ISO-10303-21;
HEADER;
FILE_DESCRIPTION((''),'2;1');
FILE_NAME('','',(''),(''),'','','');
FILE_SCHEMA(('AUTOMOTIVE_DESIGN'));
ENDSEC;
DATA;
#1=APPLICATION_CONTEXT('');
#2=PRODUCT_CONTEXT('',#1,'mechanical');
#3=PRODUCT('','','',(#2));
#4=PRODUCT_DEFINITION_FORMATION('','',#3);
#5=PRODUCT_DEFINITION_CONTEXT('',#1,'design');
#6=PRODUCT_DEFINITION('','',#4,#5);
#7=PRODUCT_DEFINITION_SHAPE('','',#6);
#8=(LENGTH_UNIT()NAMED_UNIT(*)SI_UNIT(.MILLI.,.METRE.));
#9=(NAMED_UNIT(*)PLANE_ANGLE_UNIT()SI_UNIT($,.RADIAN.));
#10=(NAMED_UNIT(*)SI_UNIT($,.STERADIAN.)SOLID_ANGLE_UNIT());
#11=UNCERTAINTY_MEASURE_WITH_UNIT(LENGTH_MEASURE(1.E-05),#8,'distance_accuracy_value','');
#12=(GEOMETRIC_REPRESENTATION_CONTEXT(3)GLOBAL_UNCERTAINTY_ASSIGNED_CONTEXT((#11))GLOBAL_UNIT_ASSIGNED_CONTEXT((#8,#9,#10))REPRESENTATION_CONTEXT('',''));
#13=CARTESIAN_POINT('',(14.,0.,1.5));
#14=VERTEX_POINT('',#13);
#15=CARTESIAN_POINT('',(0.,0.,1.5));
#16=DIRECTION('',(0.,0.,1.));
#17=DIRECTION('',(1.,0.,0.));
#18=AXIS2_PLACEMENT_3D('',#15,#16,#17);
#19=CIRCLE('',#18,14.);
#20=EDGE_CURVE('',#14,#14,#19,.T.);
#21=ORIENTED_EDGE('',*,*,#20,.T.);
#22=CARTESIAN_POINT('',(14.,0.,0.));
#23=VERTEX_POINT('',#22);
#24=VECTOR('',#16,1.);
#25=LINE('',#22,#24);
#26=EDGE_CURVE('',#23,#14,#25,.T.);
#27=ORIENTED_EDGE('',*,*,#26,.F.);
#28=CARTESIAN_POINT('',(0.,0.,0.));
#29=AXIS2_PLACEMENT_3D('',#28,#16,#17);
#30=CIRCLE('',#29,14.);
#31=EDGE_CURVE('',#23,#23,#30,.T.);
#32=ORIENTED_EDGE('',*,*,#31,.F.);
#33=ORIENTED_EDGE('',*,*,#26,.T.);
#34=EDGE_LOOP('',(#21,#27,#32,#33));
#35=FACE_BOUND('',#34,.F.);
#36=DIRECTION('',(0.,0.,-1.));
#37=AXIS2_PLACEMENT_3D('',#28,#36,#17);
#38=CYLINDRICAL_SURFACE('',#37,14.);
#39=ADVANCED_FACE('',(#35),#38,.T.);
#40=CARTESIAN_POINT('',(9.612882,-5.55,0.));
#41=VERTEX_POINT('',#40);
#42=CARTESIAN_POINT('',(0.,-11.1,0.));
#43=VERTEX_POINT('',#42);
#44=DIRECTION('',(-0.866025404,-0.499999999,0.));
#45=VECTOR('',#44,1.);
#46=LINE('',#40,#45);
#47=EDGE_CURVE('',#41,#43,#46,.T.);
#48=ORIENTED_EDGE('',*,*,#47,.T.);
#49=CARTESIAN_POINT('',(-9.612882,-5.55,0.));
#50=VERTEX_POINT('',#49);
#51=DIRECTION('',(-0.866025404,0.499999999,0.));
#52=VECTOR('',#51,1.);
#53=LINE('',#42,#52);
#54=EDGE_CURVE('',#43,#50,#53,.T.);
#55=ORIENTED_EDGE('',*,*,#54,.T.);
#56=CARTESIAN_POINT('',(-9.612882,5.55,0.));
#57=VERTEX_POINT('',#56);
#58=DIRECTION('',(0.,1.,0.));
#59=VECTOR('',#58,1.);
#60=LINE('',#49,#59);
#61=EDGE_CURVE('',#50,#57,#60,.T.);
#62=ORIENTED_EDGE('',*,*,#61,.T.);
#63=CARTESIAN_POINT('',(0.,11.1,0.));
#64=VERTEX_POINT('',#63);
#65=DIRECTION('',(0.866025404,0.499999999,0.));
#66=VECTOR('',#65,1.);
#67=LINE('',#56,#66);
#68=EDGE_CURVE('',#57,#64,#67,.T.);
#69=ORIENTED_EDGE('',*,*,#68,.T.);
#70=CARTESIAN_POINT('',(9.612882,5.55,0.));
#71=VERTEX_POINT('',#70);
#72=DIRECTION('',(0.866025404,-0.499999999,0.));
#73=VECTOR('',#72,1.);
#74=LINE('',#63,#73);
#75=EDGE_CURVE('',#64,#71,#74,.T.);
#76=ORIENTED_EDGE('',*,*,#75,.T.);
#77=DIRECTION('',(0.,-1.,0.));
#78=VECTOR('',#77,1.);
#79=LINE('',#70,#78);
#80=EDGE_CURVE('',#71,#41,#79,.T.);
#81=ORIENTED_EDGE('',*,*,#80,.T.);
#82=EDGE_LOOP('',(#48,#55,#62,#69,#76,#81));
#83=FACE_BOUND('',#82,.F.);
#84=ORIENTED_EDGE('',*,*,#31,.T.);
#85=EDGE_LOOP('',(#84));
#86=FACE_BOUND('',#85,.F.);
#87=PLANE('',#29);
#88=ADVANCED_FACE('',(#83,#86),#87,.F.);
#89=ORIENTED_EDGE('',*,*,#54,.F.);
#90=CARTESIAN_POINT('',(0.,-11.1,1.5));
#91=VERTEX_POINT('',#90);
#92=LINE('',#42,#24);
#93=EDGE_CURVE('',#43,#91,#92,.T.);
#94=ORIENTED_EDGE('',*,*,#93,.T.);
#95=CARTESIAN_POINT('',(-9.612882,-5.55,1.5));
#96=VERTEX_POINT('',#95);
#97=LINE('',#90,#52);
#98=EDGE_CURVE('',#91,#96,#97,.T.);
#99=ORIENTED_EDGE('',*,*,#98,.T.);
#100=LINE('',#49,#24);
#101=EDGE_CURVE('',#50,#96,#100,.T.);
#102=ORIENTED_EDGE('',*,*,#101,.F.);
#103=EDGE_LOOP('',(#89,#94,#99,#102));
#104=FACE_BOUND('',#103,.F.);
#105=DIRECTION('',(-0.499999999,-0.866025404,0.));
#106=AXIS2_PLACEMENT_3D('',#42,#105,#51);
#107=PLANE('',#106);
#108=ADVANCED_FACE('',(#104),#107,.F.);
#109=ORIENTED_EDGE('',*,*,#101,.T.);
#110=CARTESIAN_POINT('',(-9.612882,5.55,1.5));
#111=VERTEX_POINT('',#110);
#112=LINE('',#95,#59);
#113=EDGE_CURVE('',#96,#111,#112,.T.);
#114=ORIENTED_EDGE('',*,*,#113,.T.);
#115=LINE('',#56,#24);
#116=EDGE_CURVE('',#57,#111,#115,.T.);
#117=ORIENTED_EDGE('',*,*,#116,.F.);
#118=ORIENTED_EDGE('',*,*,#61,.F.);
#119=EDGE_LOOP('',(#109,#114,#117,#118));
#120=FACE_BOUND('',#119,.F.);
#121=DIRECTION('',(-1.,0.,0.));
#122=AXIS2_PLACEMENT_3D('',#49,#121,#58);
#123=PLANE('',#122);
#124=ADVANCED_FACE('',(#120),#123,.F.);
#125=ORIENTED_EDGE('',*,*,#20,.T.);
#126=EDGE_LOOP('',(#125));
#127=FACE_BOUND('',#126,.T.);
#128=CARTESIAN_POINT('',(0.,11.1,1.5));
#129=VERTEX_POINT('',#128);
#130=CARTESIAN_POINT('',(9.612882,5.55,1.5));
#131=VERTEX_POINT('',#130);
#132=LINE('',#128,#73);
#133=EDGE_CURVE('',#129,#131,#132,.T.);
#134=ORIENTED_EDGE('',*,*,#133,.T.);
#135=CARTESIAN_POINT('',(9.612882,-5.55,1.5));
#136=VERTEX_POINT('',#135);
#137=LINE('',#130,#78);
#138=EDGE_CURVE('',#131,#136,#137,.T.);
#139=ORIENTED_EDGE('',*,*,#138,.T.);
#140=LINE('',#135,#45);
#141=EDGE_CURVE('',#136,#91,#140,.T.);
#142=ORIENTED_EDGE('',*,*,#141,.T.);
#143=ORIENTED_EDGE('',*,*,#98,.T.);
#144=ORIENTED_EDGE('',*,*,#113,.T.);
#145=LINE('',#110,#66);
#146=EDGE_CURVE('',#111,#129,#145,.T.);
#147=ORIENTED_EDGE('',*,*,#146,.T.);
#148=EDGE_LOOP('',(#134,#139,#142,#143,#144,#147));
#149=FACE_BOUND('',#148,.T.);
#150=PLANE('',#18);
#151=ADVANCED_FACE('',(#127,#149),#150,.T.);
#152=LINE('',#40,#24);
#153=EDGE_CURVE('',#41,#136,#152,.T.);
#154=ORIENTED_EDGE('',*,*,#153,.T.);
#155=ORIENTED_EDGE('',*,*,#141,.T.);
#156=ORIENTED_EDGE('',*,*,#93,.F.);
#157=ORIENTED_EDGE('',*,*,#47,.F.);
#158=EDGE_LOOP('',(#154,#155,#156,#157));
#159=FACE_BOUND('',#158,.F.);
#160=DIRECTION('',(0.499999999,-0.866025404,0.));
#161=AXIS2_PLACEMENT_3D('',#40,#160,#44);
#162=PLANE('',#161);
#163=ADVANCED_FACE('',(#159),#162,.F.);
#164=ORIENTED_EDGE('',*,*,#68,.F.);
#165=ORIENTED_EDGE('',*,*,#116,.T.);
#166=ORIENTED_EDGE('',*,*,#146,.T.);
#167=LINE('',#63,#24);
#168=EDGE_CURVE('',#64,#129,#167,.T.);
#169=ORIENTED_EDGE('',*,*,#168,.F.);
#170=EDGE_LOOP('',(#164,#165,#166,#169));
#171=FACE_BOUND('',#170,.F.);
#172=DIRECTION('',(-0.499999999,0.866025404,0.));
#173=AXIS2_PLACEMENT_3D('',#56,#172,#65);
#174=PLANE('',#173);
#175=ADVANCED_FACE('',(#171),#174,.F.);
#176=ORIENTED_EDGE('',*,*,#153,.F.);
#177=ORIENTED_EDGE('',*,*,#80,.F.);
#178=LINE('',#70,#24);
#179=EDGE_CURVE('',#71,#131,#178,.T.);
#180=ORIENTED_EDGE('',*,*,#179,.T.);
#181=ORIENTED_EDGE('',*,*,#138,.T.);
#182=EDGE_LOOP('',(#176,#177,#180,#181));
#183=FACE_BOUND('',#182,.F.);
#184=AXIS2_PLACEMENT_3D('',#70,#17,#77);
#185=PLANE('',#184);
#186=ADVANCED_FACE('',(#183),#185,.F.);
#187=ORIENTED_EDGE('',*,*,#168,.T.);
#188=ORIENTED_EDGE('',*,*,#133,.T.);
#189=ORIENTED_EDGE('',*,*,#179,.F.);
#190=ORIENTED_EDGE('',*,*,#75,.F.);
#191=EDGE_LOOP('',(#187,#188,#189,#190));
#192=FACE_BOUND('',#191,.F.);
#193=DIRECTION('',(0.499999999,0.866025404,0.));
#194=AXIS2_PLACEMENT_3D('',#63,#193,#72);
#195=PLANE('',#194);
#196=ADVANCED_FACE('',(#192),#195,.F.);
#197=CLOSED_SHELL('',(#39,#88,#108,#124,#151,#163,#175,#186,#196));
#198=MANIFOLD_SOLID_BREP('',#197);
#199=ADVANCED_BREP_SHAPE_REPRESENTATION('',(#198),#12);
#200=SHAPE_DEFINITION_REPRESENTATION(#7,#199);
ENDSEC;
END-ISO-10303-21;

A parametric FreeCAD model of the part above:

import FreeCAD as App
import Part
import Sketcher

V = App.Vector
Q = App.Units.Quantity


def add_polygon(sketch, points):
    """Adds a closed chain of lines whose ends are joined by coincident constraints."""
    first, n = sketch.GeometryCount, len(points)
    for a, b in zip(points, points[1:] + points[:1]):
        sketch.addGeometry(Part.LineSegment(App.Vector(*a, 0), App.Vector(*b, 0)), False)
    for i in range(n):
        sketch.addConstraint(Sketcher.Constraint("Coincident", first + i, 2, first + (i + 1) % n, 1))

doc = App.newDocument("Part")
body = doc.addObject("PartDesign::Body", "Body")

sketch1 = body.newObject("Sketcher::SketchObject", "Sketch")
sketch1.AttachmentSupport = (doc.getObject("XY_Plane"), [""])
sketch1.MapMode = "FlatFace"
sketch1.addGeometry(Part.Circle(V(0, 0, 0), V(0, 0, 1), 14), False)
add_polygon(sketch1, [(0, -11), (-10, -6), (-10, 6), (0, 11), (10, 6), (10, -6)])
sketch1.addConstraint([
    Sketcher.Constraint("Vertical", 2),
    Sketcher.Constraint("Vertical", 5),
    Sketcher.Constraint("Coincident", 0, 3, -1, 1),
    Sketcher.Constraint("Symmetric", 1, 2, 4, 2, -1, 1),
    Sketcher.Constraint("Symmetric", 3, 2, 6, 2, -1, 1),
    Sketcher.Constraint("PointOnObject", 3, 2, -2),
    Sketcher.Constraint("Parallel", 3, 6),
    Sketcher.Constraint("Horizontal", 2, 2, 4, 2),
    Sketcher.Constraint("Diameter", 0, 28.0),
    Sketcher.Constraint("Angle", 1, Q("150 deg")),
    Sketcher.Constraint("DistanceY", 2, 1, 2, 2, 11.1),
    Sketcher.Constraint("Distance", 1, 11.1),
])
pad1 = body.newObject("PartDesign::Pad", "Pad")
pad1.Profile = sketch1
pad1.Length = 1.5

doc.recompute()
